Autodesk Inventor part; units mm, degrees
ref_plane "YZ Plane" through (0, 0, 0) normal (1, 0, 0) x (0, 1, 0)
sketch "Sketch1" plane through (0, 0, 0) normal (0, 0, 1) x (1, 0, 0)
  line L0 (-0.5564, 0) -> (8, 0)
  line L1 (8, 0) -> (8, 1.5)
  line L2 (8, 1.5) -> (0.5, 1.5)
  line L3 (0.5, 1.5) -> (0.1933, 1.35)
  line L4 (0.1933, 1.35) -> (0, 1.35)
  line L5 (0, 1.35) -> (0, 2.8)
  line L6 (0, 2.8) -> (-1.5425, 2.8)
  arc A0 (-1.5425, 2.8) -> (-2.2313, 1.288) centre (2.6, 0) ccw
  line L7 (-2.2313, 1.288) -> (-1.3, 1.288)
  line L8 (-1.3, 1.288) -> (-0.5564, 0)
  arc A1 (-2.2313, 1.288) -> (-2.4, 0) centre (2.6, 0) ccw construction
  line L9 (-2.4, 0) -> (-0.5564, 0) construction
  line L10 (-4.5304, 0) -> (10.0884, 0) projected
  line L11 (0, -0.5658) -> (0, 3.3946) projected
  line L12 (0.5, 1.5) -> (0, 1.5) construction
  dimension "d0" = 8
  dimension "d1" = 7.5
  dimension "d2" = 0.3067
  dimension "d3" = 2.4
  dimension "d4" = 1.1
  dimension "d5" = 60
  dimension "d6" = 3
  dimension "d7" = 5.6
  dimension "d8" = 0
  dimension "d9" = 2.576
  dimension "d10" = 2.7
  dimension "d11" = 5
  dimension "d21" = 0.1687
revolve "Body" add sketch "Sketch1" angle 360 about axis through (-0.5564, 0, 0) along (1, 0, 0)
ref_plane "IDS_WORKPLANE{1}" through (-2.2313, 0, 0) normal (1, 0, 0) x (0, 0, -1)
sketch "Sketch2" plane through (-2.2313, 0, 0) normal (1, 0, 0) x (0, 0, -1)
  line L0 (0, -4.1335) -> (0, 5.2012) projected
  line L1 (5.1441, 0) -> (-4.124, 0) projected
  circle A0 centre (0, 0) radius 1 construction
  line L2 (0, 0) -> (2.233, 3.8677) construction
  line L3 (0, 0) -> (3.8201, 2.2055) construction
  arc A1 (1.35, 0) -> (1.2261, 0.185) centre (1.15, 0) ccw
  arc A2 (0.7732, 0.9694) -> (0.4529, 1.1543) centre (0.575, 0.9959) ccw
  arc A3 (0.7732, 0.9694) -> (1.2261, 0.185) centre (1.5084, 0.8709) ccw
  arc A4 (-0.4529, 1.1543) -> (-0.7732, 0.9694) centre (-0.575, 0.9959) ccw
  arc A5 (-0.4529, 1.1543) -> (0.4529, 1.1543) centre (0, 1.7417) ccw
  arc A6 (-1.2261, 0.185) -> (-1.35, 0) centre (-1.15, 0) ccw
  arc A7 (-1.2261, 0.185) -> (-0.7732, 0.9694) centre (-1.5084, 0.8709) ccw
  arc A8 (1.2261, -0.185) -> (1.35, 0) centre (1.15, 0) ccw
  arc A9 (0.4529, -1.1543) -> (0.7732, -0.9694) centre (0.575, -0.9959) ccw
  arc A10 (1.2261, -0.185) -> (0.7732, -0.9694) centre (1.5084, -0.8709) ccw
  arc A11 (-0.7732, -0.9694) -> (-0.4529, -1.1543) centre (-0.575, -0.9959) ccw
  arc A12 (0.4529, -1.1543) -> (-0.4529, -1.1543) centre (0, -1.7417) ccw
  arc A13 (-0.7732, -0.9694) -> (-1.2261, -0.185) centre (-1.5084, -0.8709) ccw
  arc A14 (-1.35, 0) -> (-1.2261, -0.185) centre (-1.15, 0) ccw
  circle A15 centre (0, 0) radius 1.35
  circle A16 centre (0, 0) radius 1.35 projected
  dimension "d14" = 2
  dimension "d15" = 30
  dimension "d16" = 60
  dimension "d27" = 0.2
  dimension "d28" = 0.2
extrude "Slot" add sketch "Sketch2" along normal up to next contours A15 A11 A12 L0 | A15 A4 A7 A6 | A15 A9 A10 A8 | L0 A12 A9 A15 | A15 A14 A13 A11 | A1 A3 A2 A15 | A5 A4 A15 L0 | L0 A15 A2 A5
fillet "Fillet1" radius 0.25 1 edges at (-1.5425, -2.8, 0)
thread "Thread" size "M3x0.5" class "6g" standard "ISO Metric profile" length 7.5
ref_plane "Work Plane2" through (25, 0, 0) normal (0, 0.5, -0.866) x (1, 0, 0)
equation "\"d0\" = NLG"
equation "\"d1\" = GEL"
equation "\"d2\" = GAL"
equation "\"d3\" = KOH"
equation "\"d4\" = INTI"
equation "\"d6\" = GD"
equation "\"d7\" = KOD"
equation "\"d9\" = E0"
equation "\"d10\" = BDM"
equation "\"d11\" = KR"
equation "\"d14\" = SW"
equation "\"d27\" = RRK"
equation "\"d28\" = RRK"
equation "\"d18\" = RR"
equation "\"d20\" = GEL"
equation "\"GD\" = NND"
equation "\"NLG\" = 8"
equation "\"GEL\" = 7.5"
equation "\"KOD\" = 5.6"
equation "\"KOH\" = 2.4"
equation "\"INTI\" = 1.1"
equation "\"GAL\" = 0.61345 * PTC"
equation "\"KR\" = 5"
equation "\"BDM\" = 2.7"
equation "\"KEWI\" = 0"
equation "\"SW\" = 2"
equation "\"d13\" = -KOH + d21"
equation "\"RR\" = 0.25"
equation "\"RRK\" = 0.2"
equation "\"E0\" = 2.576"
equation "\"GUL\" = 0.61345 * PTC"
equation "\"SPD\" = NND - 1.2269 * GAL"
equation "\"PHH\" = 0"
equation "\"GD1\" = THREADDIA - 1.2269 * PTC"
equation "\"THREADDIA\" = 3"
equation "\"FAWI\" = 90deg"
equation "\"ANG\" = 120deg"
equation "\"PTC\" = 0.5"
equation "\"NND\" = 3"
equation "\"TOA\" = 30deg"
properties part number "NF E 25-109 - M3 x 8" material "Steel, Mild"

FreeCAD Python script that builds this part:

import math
import FreeCAD as App
import Part
import Sketcher

V = App.Vector
Q = App.Units.Quantity


def edges_at(feature, points):
    """Names of the edges that pass closest to the given points."""
    edges = feature.Shape.Edges
    near = lambda p: min(range(len(edges)), key=lambda i: edges[i].distToShape(Part.Vertex(*p))[0])
    return sorted({f"Edge{near(p) + 1}" for p in points})

doc = App.newDocument("Part")
body = doc.addObject("PartDesign::Body", "Body")

# Sketch on XY plane
sketch1 = body.newObject("Sketcher::SketchObject", "Sketch")
sketch1.AttachmentSupport = (doc.getObject("XY_Plane"), [""])
sketch1.MapMode = "FlatFace"
sketch1.addGeometry([
    Part.LineSegment(V(-1.3, 1.29, 0), V(-0.56, 0, 0)),  # 0
    Part.LineSegment(V(-0.56, 0, 0), V(8, 0, 0)),  # 1
    Part.LineSegment(V(8, 0, 0), V(8, 1.5, 0)),  # 2
    Part.LineSegment(V(8, 1.5, 0), V(0.5, 1.5, 0)),  # 3
    Part.LineSegment(V(0.5, 1.5, 0), V(0.19, 1.35, 0)),  # 4
    Part.LineSegment(V(0.19, 1.35, 0), V(0, 1.35, 0)),  # 5
    Part.LineSegment(V(0, 1.35, 0), V(0, 2.8, 0)),  # 6
    Part.LineSegment(V(0, 2.8, 0), V(-1.54, 2.8, 0)),  # 7
    Part.ArcOfCircle(Part.Circle(V(2.6, 0, 0), V(0, 0, 1), 5), math.radians(145.94), math.radians(165.07)),  # 8
    Part.LineSegment(V(-2.23, 1.29, 0), V(-1.3, 1.29, 0)),  # 9
], False)
sketch1.addConstraint([
    Sketcher.Constraint("Coincident", 0, 2, 1, 1),
    Sketcher.Constraint("Coincident", 1, 2, 2, 1),
    Sketcher.Constraint("Coincident", 2, 2, 3, 1),
    Sketcher.Constraint("Coincident", 3, 2, 4, 1),
    Sketcher.Constraint("Coincident", 4, 2, 5, 1),
    Sketcher.Constraint("Coincident", 5, 2, 6, 1),
    Sketcher.Constraint("Coincident", 6, 2, 7, 1),
    Sketcher.Constraint("Coincident", 7, 2, 8, 1),
    Sketcher.Constraint("Coincident", 8, 2, 9, 1),
    Sketcher.Constraint("Coincident", 9, 2, 0, 1),
    Sketcher.Constraint("Horizontal", 1),
    Sketcher.Constraint("Vertical", 2),
    Sketcher.Constraint("Horizontal", 3),
    Sketcher.Constraint("Horizontal", 5),
    Sketcher.Constraint("Vertical", 6),
    Sketcher.Constraint("Horizontal", 7),
    Sketcher.Constraint("Horizontal", 9),
    Sketcher.Constraint("PointOnObject", 8, 3, -1),
    Sketcher.Constraint("PointOnObject", 0, 2, -1),
    Sketcher.Constraint("PointOnObject", 5, 2, -2),
    Sketcher.Constraint("Radius", 8, 5.0),
    Sketcher.Constraint("DistanceX", 3, 2, 3, 1, 7.5),
    Sketcher.Constraint("DistanceX", -1, 1, 1, 2, 8.0),
    Sketcher.Constraint("Angle", 0, Q("-60.001 deg")),
    Sketcher.Constraint("DistanceY", 2, 1, 2, 2, 1.5),
    Sketcher.Constraint("DistanceY", 6, 1, 6, 2, 1.45),
    Sketcher.Constraint("DistanceX", -1, 1, 8, 3, 2.6),
    Sketcher.Constraint("DistanceY", -1, 1, 6, 2, 2.8),
    Sketcher.Constraint("DistanceX", 9, 2, -1, 1, 1.3),
    Sketcher.Constraint("DistanceX", 4, 2, 3, 2, 0.3067),
    Sketcher.Constraint("DistanceX", 1, 1, 1, 2, 8.5564),
])
revolution = body.newObject("PartDesign::Revolution", "Revolution")
revolution.Profile = sketch1
revolution.ReferenceAxis = (sketch1, ["H_Axis"])
revolution.Angle = 360

# Sketch on YZ plane
sketch2 = body.newObject("Sketcher::SketchObject", "Sketch001")
sketch2.AttachmentSupport = (doc.getObject("YZ_Plane"), [""])
sketch2.MapMode = "FlatFace"
sketch2.AttachmentOffset = App.Placement(V(0, 0, -2.2313), App.Rotation())
sketch2.addGeometry([
    Part.ArcOfCircle(Part.Circle(V(0, 0, 0), V(0, 0, 1), 1.35), math.radians(150), math.radians(210)),  # 0
    Part.ArcOfCircle(Part.Circle(V(-1, -0.57, 0), V(0, 0, 1), 0.2), math.radians(142), math.radians(210)),  # 1
    Part.ArcOfCircle(Part.Circle(V(-1.74, 0, 0), V(0, 0, 1), 0.74), math.radians(-38), math.radians(38)),  # 2
    Part.ArcOfCircle(Part.Circle(V(-1, 0.57, 0), V(0, 0, 1), 0.2), math.radians(150), math.radians(218)),  # 3
    Part.ArcOfCircle(Part.Circle(V(0, 0, 0), V(0, 0, 1), 1.35), math.radians(30), math.radians(90)),  # 4
    Part.ArcOfCircle(Part.Circle(V(0, 1.15, 0), V(0, 0, 1), 0.2), math.radians(22), math.radians(90)),  # 5
    Part.ArcOfCircle(Part.Circle(V(0.87, 1.51, 0), V(0, 0, 1), 0.74), math.radians(-158), math.radians(-82)),  # 6
    Part.ArcOfCircle(Part.Circle(V(1, 0.57, 0), V(0, 0, 1), 0.2), math.radians(30), math.radians(98)),  # 7
    Part.ArcOfCircle(Part.Circle(V(0, 0, 0), V(0, 0, 1), 1.35), math.radians(-150), math.radians(-90)),  # 8
    Part.ArcOfCircle(Part.Circle(V(0, -1.15, 0), V(0, 0, 1), 0.2), math.radians(-158), math.radians(-90)),  # 9
    Part.ArcOfCircle(Part.Circle(V(-0.87, -1.51, 0), V(0, 0, 1), 0.74), math.radians(22), math.radians(98)),  # 10
    Part.ArcOfCircle(Part.Circle(V(-1, -0.57, 0), V(0, 0, 1), 0.2), math.radians(-150), math.radians(-82)),  # 11
    Part.ArcOfCircle(Part.Circle(V(0, 0, 0), V(0, 0, 1), 1.35), math.radians(90), math.radians(150)),  # 12
    Part.ArcOfCircle(Part.Circle(V(-1, 0.57, 0), V(0, 0, 1), 0.2), math.radians(82), math.radians(150)),  # 13
    Part.ArcOfCircle(Part.Circle(V(-0.87, 1.51, 0), V(0, 0, 1), 0.74), math.radians(-98), math.radians(-22)),  # 14
    Part.ArcOfCircle(Part.Circle(V(0, 1.15, 0), V(0, 0, 1), 0.2), math.radians(90), math.radians(158)),  # 15
    Part.ArcOfCircle(Part.Circle(V(0, -1.15, 0), V(0, 0, 1), 0.2), math.radians(-90), math.radians(-22)),  # 16
    Part.ArcOfCircle(Part.Circle(V(0, 0, 0), V(0, 0, 1), 1.35), math.radians(-90), math.radians(-30)),  # 17
    Part.ArcOfCircle(Part.Circle(V(1, -0.57, 0), V(0, 0, 1), 0.2), math.radians(-98), math.radians(-30)),  # 18
    Part.ArcOfCircle(Part.Circle(V(0.87, -1.51, 0), V(0, 0, 1), 0.74), math.radians(82), math.radians(158)),  # 19
    Part.ArcOfCircle(Part.Circle(V(1.74, 0, 0), V(0, 0, 1), 0.74), math.radians(142), math.radians(218)),  # 20
    Part.ArcOfCircle(Part.Circle(V(1, -0.57, 0), V(0, 0, 1), 0.2), math.radians(-30), math.radians(38)),  # 21
    Part.ArcOfCircle(Part.Circle(V(0, 0, 0), V(0, 0, 1), 1.35), math.radians(-30), math.radians(30)),  # 22
    Part.ArcOfCircle(Part.Circle(V(1, 0.57, 0), V(0, 0, 1), 0.2), math.radians(-38), math.radians(30)),  # 23
], False)
sketch2.addConstraint([
    Sketcher.Constraint("Tangent", 0, 2, 1, 2),
    Sketcher.Constraint("Tangent", 1, 1, 2, 1),
    Sketcher.Constraint("Tangent", 2, 2, 3, 2),
    Sketcher.Constraint("Tangent", 3, 1, 0, 1),
    Sketcher.Constraint("Tangent", 4, 2, 5, 2),
    Sketcher.Constraint("Tangent", 5, 1, 6, 1),
    Sketcher.Constraint("Tangent", 6, 2, 7, 2),
    Sketcher.Constraint("Tangent", 7, 1, 4, 1),
    Sketcher.Constraint("Tangent", 8, 2, 9, 2),
    Sketcher.Constraint("Tangent", 9, 1, 10, 1),
    Sketcher.Constraint("Tangent", 10, 2, 11, 2),
    Sketcher.Constraint("Tangent", 11, 1, 8, 1),
    Sketcher.Constraint("Tangent", 12, 2, 13, 2),
    Sketcher.Constraint("Tangent", 13, 1, 14, 1),
    Sketcher.Constraint("Tangent", 14, 2, 15, 2),
    Sketcher.Constraint("Tangent", 15, 1, 12, 1),
    Sketcher.Constraint("Tangent", 16, 1, 17, 1),
    Sketcher.Constraint("Tangent", 17, 2, 18, 2),
    Sketcher.Constraint("Tangent", 18, 1, 19, 1),
    Sketcher.Constraint("Tangent", 19, 2, 16, 2),
    Sketcher.Constraint("Tangent", 20, 2, 21, 2),
    Sketcher.Constraint("Tangent", 21, 1, 22, 1),
    Sketcher.Constraint("Tangent", 22, 2, 23, 2),
    Sketcher.Constraint("Tangent", 23, 1, 20, 1),
    Sketcher.Constraint("Coincident", 0, 3, -1, 1),
    Sketcher.Constraint("Coincident", 4, 3, -1, 1),
    Sketcher.Constraint("Coincident", 8, 3, -1, 1),
    Sketcher.Constraint("Coincident", 12, 3, -1, 1),
    Sketcher.Constraint("Coincident", 17, 3, -1, 1),
    Sketcher.Constraint("Coincident", 22, 3, -1, 1),
    Sketcher.Constraint("Coincident", 11, 3, 1, 3),
    Sketcher.Constraint("Coincident", 13, 3, 3, 3),
    Sketcher.Constraint("Coincident", 15, 3, 5, 3),
    Sketcher.Constraint("Coincident", 16, 3, 9, 3),
    Sketcher.Constraint("Coincident", 21, 3, 18, 3),
    Sketcher.Constraint("Coincident", 23, 3, 7, 3),
    Sketcher.Constraint("Equal", 1, 3),
    Sketcher.Constraint("Equal", 0, 4),
    Sketcher.Constraint("Equal", 3, 5),
    Sketcher.Constraint("Equal", 2, 6),
    Sketcher.Constraint("Equal", 5, 7),
    Sketcher.Constraint("Equal", 4, 8),
    Sketcher.Constraint("Equal", 7, 9),
    Sketcher.Constraint("Equal", 6, 10),
    Sketcher.Constraint("Equal", 8, 12),
    Sketcher.Constraint("Equal", 10, 14),
    Sketcher.Constraint("Equal", 15, 16),
    Sketcher.Constraint("Equal", 16, 18),
    Sketcher.Constraint("Equal", 14, 19),
    Sketcher.Constraint("Equal", 19, 20),
    Sketcher.Constraint("Equal", 18, 21),
    Sketcher.Constraint("Symmetric", 6, 3, 10, 3, -1, 1),
    Sketcher.Constraint("Symmetric", 6, 3, 14, 3, -2),
    Sketcher.Constraint("PointOnObject", 20, 3, -1),
    Sketcher.Constraint("Radius", 1, 0.2),
    Sketcher.Constraint("Radius", 0, 1.35),
    Sketcher.Constraint("Radius", 2, 0.7417),
    Sketcher.Constraint("DistanceY", 0, 2, 1, 3, 0.1),
])
pad1 = body.newObject("PartDesign::Pad", "Pad")
pad1.Profile = sketch2
pad1.Length = 1.0976
doc.recompute()

fillet = body.newObject("PartDesign::Fillet", "Fillet")
fillet.Base = (pad1, edges_at(pad1, [(-1.542, -2.8, 0)]))
fillet.Radius = 0.25

doc.recompute()
